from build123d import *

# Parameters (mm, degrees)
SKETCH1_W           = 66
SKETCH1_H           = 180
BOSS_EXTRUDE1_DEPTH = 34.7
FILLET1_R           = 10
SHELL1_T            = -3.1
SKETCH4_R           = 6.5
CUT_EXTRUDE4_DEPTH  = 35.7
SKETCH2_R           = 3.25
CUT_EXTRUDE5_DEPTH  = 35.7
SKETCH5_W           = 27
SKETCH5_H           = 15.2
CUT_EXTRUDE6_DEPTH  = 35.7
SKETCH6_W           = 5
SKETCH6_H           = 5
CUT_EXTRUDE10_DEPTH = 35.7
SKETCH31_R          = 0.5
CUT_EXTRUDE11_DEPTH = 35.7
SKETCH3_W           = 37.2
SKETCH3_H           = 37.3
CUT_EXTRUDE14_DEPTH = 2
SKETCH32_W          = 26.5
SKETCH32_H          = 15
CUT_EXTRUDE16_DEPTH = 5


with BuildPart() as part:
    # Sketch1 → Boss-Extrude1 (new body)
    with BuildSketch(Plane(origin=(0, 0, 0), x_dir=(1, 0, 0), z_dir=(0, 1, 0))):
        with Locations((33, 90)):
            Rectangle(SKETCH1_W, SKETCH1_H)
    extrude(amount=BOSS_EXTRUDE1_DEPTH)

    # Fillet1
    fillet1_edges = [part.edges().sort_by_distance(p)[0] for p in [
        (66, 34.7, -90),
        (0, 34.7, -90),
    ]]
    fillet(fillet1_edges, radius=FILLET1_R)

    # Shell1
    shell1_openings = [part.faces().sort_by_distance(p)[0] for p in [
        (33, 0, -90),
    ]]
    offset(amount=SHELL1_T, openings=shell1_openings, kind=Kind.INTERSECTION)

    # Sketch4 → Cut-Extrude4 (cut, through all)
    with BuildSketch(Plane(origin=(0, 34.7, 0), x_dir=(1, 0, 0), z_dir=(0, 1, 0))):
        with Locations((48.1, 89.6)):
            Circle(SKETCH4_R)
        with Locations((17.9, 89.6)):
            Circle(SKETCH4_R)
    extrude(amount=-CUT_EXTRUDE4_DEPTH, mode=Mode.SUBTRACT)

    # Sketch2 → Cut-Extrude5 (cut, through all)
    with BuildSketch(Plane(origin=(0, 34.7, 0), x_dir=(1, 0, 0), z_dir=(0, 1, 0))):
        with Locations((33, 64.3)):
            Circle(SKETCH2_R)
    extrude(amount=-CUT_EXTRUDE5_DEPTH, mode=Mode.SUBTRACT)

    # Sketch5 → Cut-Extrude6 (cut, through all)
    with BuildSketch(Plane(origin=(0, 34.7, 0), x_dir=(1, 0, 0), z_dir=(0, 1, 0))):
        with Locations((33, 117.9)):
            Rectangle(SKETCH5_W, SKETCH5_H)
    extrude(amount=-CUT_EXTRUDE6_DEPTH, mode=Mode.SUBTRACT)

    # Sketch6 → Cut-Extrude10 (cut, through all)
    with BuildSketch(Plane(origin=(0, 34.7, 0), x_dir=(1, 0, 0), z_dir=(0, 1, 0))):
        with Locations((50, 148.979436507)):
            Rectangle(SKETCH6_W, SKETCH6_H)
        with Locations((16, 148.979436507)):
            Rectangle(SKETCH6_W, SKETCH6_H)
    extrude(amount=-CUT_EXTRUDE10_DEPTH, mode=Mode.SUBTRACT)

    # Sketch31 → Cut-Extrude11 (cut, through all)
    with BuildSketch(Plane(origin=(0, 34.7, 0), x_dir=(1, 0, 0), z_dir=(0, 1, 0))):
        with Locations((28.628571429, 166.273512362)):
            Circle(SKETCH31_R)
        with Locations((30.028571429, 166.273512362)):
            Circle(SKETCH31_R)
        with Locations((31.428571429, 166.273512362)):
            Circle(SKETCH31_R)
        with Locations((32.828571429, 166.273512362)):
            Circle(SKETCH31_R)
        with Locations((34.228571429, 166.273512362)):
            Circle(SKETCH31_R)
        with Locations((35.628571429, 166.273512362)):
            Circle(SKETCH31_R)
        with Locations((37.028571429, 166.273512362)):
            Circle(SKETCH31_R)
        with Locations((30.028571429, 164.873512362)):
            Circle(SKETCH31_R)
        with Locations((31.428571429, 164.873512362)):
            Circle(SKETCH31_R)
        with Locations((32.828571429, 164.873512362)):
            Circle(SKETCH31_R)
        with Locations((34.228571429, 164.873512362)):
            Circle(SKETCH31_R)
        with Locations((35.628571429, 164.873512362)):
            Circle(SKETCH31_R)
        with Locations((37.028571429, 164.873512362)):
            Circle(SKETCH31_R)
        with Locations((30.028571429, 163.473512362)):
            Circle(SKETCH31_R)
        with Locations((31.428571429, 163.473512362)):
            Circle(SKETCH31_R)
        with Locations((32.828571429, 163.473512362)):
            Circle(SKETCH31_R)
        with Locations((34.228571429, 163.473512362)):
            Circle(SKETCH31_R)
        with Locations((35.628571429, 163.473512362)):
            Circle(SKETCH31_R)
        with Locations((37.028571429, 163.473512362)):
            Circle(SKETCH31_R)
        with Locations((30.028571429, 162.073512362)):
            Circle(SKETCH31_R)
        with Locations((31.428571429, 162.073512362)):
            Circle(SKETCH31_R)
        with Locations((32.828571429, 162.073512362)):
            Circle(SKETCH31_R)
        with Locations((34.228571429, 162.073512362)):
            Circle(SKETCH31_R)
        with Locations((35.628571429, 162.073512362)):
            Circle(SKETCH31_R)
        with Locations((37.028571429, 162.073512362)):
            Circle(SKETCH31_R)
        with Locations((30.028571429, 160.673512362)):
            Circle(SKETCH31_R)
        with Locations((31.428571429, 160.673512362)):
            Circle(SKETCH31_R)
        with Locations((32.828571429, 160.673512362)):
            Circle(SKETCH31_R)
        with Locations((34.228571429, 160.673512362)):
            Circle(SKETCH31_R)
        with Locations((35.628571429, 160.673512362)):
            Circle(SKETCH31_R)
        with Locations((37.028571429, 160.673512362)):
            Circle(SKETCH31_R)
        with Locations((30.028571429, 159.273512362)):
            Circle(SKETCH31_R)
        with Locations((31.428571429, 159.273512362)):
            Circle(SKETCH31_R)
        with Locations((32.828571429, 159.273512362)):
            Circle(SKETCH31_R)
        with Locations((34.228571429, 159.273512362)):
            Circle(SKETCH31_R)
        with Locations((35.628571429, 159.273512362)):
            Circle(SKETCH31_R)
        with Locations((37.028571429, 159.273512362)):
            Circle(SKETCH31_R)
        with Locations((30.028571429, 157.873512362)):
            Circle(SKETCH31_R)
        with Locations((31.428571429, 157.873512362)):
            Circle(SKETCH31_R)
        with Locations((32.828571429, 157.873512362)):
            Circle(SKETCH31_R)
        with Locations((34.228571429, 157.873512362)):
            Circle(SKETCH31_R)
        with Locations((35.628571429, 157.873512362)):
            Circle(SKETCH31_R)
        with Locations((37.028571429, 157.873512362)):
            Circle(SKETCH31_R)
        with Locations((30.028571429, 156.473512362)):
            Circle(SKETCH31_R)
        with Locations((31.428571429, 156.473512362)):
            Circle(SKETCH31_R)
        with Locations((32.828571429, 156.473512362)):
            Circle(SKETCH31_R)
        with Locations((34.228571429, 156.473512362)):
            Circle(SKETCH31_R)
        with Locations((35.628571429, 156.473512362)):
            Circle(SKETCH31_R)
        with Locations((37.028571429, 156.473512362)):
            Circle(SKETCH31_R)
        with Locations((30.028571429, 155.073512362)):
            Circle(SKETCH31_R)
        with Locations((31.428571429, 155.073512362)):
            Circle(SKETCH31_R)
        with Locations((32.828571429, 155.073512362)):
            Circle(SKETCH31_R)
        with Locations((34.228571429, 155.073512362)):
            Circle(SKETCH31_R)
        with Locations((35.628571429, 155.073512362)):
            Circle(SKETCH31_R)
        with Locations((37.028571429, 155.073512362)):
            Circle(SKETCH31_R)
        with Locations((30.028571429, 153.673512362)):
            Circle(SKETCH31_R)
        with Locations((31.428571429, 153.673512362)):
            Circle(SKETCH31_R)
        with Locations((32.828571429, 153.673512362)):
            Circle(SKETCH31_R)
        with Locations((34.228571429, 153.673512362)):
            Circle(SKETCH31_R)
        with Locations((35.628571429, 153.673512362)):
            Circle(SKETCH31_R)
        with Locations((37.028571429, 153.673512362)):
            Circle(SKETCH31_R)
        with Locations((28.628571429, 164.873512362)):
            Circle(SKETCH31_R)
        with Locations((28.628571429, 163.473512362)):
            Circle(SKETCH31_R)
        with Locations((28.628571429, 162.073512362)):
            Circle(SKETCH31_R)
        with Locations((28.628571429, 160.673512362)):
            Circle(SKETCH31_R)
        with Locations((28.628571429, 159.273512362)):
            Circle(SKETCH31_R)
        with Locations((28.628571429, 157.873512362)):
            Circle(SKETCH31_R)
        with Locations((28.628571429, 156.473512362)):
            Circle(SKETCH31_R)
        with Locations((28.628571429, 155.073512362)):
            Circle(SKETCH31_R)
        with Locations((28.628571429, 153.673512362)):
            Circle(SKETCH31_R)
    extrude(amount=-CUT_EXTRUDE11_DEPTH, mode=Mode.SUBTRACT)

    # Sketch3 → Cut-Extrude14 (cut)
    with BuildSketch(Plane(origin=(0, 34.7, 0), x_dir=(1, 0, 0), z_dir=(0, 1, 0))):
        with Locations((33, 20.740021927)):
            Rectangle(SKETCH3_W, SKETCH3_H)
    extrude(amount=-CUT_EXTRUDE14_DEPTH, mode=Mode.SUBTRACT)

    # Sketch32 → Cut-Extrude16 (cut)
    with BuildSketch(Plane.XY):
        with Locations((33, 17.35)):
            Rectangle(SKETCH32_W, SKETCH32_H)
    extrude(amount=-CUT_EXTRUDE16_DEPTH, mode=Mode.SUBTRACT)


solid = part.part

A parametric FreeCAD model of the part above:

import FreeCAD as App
import Part
import Sketcher
from FreeCAD import Vector
Q = App.Units.Quantity


def edges_at(feature, points):
    """Names of the edges that pass closest to the given points."""
    edges = feature.Shape.Edges
    near = lambda p: min(range(len(edges)), key=lambda i: edges[i].distToShape(Part.Vertex(*p))[0])
    return sorted({f"Edge{near(p) + 1}" for p in points})


def faces_at(feature, points):
    """Names of the faces that lie closest to the given points."""
    faces = feature.Shape.Faces
    near = lambda p: min(range(len(faces)), key=lambda i: faces[i].distToShape(Part.Vertex(*p))[0])
    return sorted({f"Face{near(p) + 1}" for p in points})


def add_polygon(sketch, points):
    """Adds a closed chain of lines whose ends are joined by coincident constraints."""
    first, n = sketch.GeometryCount, len(points)
    for a, b in zip(points, points[1:] + points[:1]):
        sketch.addGeometry(Part.LineSegment(App.Vector(*a, 0), App.Vector(*b, 0)), False)
    for i in range(n):
        sketch.addConstraint(Sketcher.Constraint("Coincident", first + i, 2, first + (i + 1) % n, 1))

doc = App.newDocument("Part")
body = doc.addObject("PartDesign::Body", "Body")

# Sketch on XZ plane
sketch1 = body.newObject("Sketcher::SketchObject", "Sketch")
sketch1.AttachmentSupport = (doc.getObject("XZ_Plane"), [""])
sketch1.MapMode = "FlatFace"
add_polygon(sketch1, [(0, -180), (0, 0), (66, 0), (66, -180)])  # lines 0-3
sketch1.addConstraint([
    Sketcher.Constraint("Vertical", 0),
    Sketcher.Constraint("Horizontal", 1),
    Sketcher.Constraint("Vertical", 2),
    Sketcher.Constraint("Horizontal", 3),
    Sketcher.Constraint("Coincident", 0, 2, -1, 1),
    Sketcher.Constraint("DistanceX", 1, 1, 1, 2, Q("66 mm")),
    Sketcher.Constraint("DistanceY", 0, 1, 0, 2, Q("180 mm")),
])
pad1 = body.newObject("PartDesign::Pad", "Pad")
pad1.Profile = sketch1
pad1.Length = 34.7
pad1.Reversed = True
doc.recompute()

fillet = body.newObject("PartDesign::Fillet", "Fillet")
fillet.Base = (pad1, edges_at(pad1, [(66, 34.7, -90), (0, 34.7, -90)]))
fillet.Radius = 10
doc.recompute()

thickness = body.newObject("PartDesign::Thickness", "Thickness")
thickness.Base = (fillet, faces_at(fillet, [(33, 0, -90)]))
thickness.Value = 3.1
thickness.Reversed = True
thickness.Join = "Intersection"

# Sketch on XZ plane
sketch2 = body.newObject("Sketcher::SketchObject", "Sketch001")
sketch2.AttachmentSupport = (doc.getObject("XZ_Plane"), [""])
sketch2.MapMode = "FlatFace"
sketch2.AttachmentOffset = App.Placement(Vector(0, 0, -34.7), App.Rotation())
sketch2.addGeometry([
    Part.Circle(Vector(48.1, -89.6, 0), Vector(0, 0, 1), 6.5),
    Part.Circle(Vector(17.9, -89.6, 0), Vector(0, 0, 1), 6.5),
], False)
sketch2.addConstraint([
    Sketcher.Constraint("Equal", 0, 1),
    Sketcher.Constraint("Horizontal", 0, 3, 1, 3),
    Sketcher.Constraint("Diameter", 0, Q("13 mm")),
    Sketcher.Constraint("DistanceX", -1, 1, 0, 3, Q("48.1 mm")),
    Sketcher.Constraint("DistanceY", 0, 3, -1, 1, Q("89.6 mm")),
    Sketcher.Constraint("DistanceX", -1, 1, 1, 3, Q("17.9 mm")),
])
pocket1 = body.newObject("PartDesign::Pocket", "Pocket")
pocket1.Profile = sketch2
pocket1.Type = "ThroughAll"
pocket1.Reversed = True

# Sketch on XZ plane
sketch3 = body.newObject("Sketcher::SketchObject", "Sketch002")
sketch3.AttachmentSupport = (doc.getObject("XZ_Plane"), [""])
sketch3.MapMode = "FlatFace"
sketch3.AttachmentOffset = App.Placement(Vector(0, 0, -34.7), App.Rotation())
sketch3.addGeometry(Part.Circle(Vector(33, -64.3, 0), Vector(0, 0, 1), 3.25), False)
sketch3.addConstraint([
    Sketcher.Constraint("Diameter", 0, Q("6.5 mm")),
    Sketcher.Constraint("DistanceX", -1, 1, 0, 3, Q("33 mm")),
    Sketcher.Constraint("DistanceY", 0, 3, -1, 1, Q("64.3 mm")),
])
pocket2 = body.newObject("PartDesign::Pocket", "Pocket001")
pocket2.Profile = sketch3
pocket2.Type = "ThroughAll"
pocket2.Reversed = True

# Sketch on XZ plane
sketch4 = body.newObject("Sketcher::SketchObject", "Sketch003")
sketch4.AttachmentSupport = (doc.getObject("XZ_Plane"), [""])
sketch4.MapMode = "FlatFace"
sketch4.AttachmentOffset = App.Placement(Vector(0, 0, -34.7), App.Rotation())
add_polygon(sketch4, [(19.5, -125.5), (19.5, -110.3), (46.5, -110.3), (46.5, -125.5)])  # lines 0-3
sketch4.addConstraint([
    Sketcher.Constraint("Vertical", 0),
    Sketcher.Constraint("Horizontal", 1),
    Sketcher.Constraint("Vertical", 2),
    Sketcher.Constraint("Horizontal", 3),
    Sketcher.Constraint("DistanceX", 1, 1, 1, 2, Q("27 mm")),
    Sketcher.Constraint("DistanceY", 0, 1, 0, 2, Q("15.2 mm")),
    Sketcher.Constraint("DistanceX", -1, 1, 0, 2, Q("19.5 mm")),
    Sketcher.Constraint("DistanceY", 0, 2, -1, 1, Q("110.3 mm")),
])
pocket3 = body.newObject("PartDesign::Pocket", "Pocket002")
pocket3.Profile = sketch4
pocket3.Type = "ThroughAll"
pocket3.Reversed = True

# Sketch on XZ plane
sketch5 = body.newObject("Sketcher::SketchObject", "Sketch004")
sketch5.AttachmentSupport = (doc.getObject("XZ_Plane"), [""])
sketch5.MapMode = "FlatFace"
sketch5.AttachmentOffset = App.Placement(Vector(0, 0, -34.7), App.Rotation())
add_polygon(sketch5, [(47.5, -151.479437), (47.5, -146.479437), (52.5, -146.479437), (52.5, -151.479437)])  # lines 0-3
add_polygon(sketch5, [(13.5, -151.479437), (13.5, -146.479437), (18.5, -146.479437), (18.5, -151.479437)])  # lines 4-7
sketch5.addConstraint([
    Sketcher.Constraint("Vertical", 0),
    Sketcher.Constraint("Horizontal", 1),
    Sketcher.Constraint("Vertical", 2),
    Sketcher.Constraint("Horizontal", 3),
    Sketcher.Constraint("Vertical", 4),
    Sketcher.Constraint("Horizontal", 5),
    Sketcher.Constraint("Vertical", 6),
    Sketcher.Constraint("Horizontal", 7),
    Sketcher.Constraint("Horizontal", 1, 2, 4, 2),
    Sketcher.Constraint("Horizontal", 3, 2, 6, 2),
    Sketcher.Constraint("Equal", 3, 5),
    Sketcher.Constraint("Equal", 7, 0),
    Sketcher.Constraint("DistanceX", 1, 1, 1, 2, Q("5 mm")),
    Sketcher.Constraint("DistanceX", 4, 2, 0, 2, Q("34 mm")),
    Sketcher.Constraint("DistanceX", -1, 1, 0, 2, Q("47.5 mm")),
    Sketcher.Constraint("DistanceY", 0, 2, -1, 1, Q("146.479437 mm")),
])
pocket4 = body.newObject("PartDesign::Pocket", "Pocket003")
pocket4.Profile = sketch5
pocket4.Type = "ThroughAll"
pocket4.Reversed = True

# Sketch on XZ plane
sketch6 = body.newObject("Sketcher::SketchObject", "Sketch005")
sketch6.AttachmentSupport = (doc.getObject("XZ_Plane"), [""])
sketch6.MapMode = "FlatFace"
sketch6.AttachmentOffset = App.Placement(Vector(0, 0, -34.7), App.Rotation())
sketch6.addGeometry([
    Part.Circle(Vector(28.628571, -166.273512, 0), Vector(0, 0, 1), 0.5),  # 0
    Part.Circle(Vector(30.028571, -166.273512, 0), Vector(0, 0, 1), 0.5),  # 1
    Part.Circle(Vector(31.428571, -166.273512, 0), Vector(0, 0, 1), 0.5),  # 2
    Part.Circle(Vector(32.828571, -166.273512, 0), Vector(0, 0, 1), 0.5),  # 3
    Part.Circle(Vector(34.228571, -166.273512, 0), Vector(0, 0, 1), 0.5),  # 4
    Part.Circle(Vector(35.628571, -166.273512, 0), Vector(0, 0, 1), 0.5),  # 5
    Part.Circle(Vector(37.028571, -166.273512, 0), Vector(0, 0, 1), 0.5),  # 6
    Part.Circle(Vector(30.028571, -164.873512, 0), Vector(0, 0, 1), 0.5),  # 7
    Part.Circle(Vector(31.428571, -164.873512, 0), Vector(0, 0, 1), 0.5),  # 8
    Part.Circle(Vector(32.828571, -164.873512, 0), Vector(0, 0, 1), 0.5),  # 9
    Part.Circle(Vector(34.228571, -164.873512, 0), Vector(0, 0, 1), 0.5),  # 10
    Part.Circle(Vector(35.628571, -164.873512, 0), Vector(0, 0, 1), 0.5),  # 11
    Part.Circle(Vector(37.028571, -164.873512, 0), Vector(0, 0, 1), 0.5),  # 12
    Part.Circle(Vector(30.028571, -163.473512, 0), Vector(0, 0, 1), 0.5),  # 13
    Part.Circle(Vector(31.428571, -163.473512, 0), Vector(0, 0, 1), 0.5),  # 14
    Part.Circle(Vector(32.828571, -163.473512, 0), Vector(0, 0, 1), 0.5),  # 15
    Part.Circle(Vector(34.228571, -163.473512, 0), Vector(0, 0, 1), 0.5),  # 16
    Part.Circle(Vector(35.628571, -163.473512, 0), Vector(0, 0, 1), 0.5),  # 17
    Part.Circle(Vector(37.028571, -163.473512, 0), Vector(0, 0, 1), 0.5),  # 18
    Part.Circle(Vector(30.028571, -162.073512, 0), Vector(0, 0, 1), 0.5),  # 19
    Part.Circle(Vector(31.428571, -162.073512, 0), Vector(0, 0, 1), 0.5),  # 20
    Part.Circle(Vector(32.828571, -162.073512, 0), Vector(0, 0, 1), 0.5),  # 21
    Part.Circle(Vector(34.228571, -162.073512, 0), Vector(0, 0, 1), 0.5),  # 22
    Part.Circle(Vector(35.628571, -162.073512, 0), Vector(0, 0, 1), 0.5),  # 23
    Part.Circle(Vector(37.028571, -162.073512, 0), Vector(0, 0, 1), 0.5),  # 24
    Part.Circle(Vector(30.028571, -160.673512, 0), Vector(0, 0, 1), 0.5),  # 25
    Part.Circle(Vector(31.428571, -160.673512, 0), Vector(0, 0, 1), 0.5),  # 26
    Part.Circle(Vector(32.828571, -160.673512, 0), Vector(0, 0, 1), 0.5),  # 27
    Part.Circle(Vector(34.228571, -160.673512, 0), Vector(0, 0, 1), 0.5),  # 28
    Part.Circle(Vector(35.628571, -160.673512, 0), Vector(0, 0, 1), 0.5),  # 29
    Part.Circle(Vector(37.028571, -160.673512, 0), Vector(0, 0, 1), 0.5),  # 30
    Part.Circle(Vector(30.028571, -159.273512, 0), Vector(0, 0, 1), 0.5),  # 31
    Part.Circle(Vector(31.428571, -159.273512, 0), Vector(0, 0, 1), 0.5),  # 32
    Part.Circle(Vector(32.828571, -159.273512, 0), Vector(0, 0, 1), 0.5),  # 33
    Part.Circle(Vector(34.228571, -159.273512, 0), Vector(0, 0, 1), 0.5),  # 34
    Part.Circle(Vector(35.628571, -159.273512, 0), Vector(0, 0, 1), 0.5),  # 35
    Part.Circle(Vector(37.028571, -159.273512, 0), Vector(0, 0, 1), 0.5),  # 36
    Part.Circle(Vector(30.028571, -157.873512, 0), Vector(0, 0, 1), 0.5),  # 37
    Part.Circle(Vector(31.428571, -157.873512, 0), Vector(0, 0, 1), 0.5),  # 38
    Part.Circle(Vector(32.828571, -157.873512, 0), Vector(0, 0, 1), 0.5),  # 39
    Part.Circle(Vector(34.228571, -157.873512, 0), Vector(0, 0, 1), 0.5),  # 40
    Part.Circle(Vector(35.628571, -157.873512, 0), Vector(0, 0, 1), 0.5),  # 41
    Part.Circle(Vector(37.028571, -157.873512, 0), Vector(0, 0, 1), 0.5),  # 42
    Part.Circle(Vector(30.028571, -156.473512, 0), Vector(0, 0, 1), 0.5),  # 43
    Part.Circle(Vector(31.428571, -156.473512, 0), Vector(0, 0, 1), 0.5),  # 44
    Part.Circle(Vector(32.828571, -156.473512, 0), Vector(0, 0, 1), 0.5),  # 45
    Part.Circle(Vector(34.228571, -156.473512, 0), Vector(0, 0, 1), 0.5),  # 46
    Part.Circle(Vector(35.628571, -156.473512, 0), Vector(0, 0, 1), 0.5),  # 47
    Part.Circle(Vector(37.028571, -156.473512, 0), Vector(0, 0, 1), 0.5),  # 48
    Part.Circle(Vector(30.028571, -155.073512, 0), Vector(0, 0, 1), 0.5),  # 49
    Part.Circle(Vector(31.428571, -155.073512, 0), Vector(0, 0, 1), 0.5),  # 50
    Part.Circle(Vector(32.828571, -155.073512, 0), Vector(0, 0, 1), 0.5),  # 51
    Part.Circle(Vector(34.228571, -155.073512, 0), Vector(0, 0, 1), 0.5),  # 52
    Part.Circle(Vector(35.628571, -155.073512, 0), Vector(0, 0, 1), 0.5),  # 53
    Part.Circle(Vector(37.028571, -155.073512, 0), Vector(0, 0, 1), 0.5),  # 54
    Part.Circle(Vector(30.028571, -153.673512, 0), Vector(0, 0, 1), 0.5),  # 55
    Part.Circle(Vector(31.428571, -153.673512, 0), Vector(0, 0, 1), 0.5),  # 56
    Part.Circle(Vector(32.828571, -153.673512, 0), Vector(0, 0, 1), 0.5),  # 57
    Part.Circle(Vector(34.228571, -153.673512, 0), Vector(0, 0, 1), 0.5),  # 58
    Part.Circle(Vector(35.628571, -153.673512, 0), Vector(0, 0, 1), 0.5),  # 59
    Part.Circle(Vector(37.028571, -153.673512, 0), Vector(0, 0, 1), 0.5),  # 60
    Part.Circle(Vector(28.628571, -164.873512, 0), Vector(0, 0, 1), 0.5),  # 61
    Part.Circle(Vector(28.628571, -163.473512, 0), Vector(0, 0, 1), 0.5),  # 62
    Part.Circle(Vector(28.628571, -162.073512, 0), Vector(0, 0, 1), 0.5),  # 63
    Part.Circle(Vector(28.628571, -160.673512, 0), Vector(0, 0, 1), 0.5),  # 64
    Part.Circle(Vector(28.628571, -159.273512, 0), Vector(0, 0, 1), 0.5),  # 65
    Part.Circle(Vector(28.628571, -157.873512, 0), Vector(0, 0, 1), 0.5),  # 66
    Part.Circle(Vector(28.628571, -156.473512, 0), Vector(0, 0, 1), 0.5),  # 67
    Part.Circle(Vector(28.628571, -155.073512, 0), Vector(0, 0, 1), 0.5),  # 68
    Part.Circle(Vector(28.628571, -153.673512, 0), Vector(0, 0, 1), 0.5),  # 69
], False)
sketch6.addConstraint([
    Sketcher.Constraint("Equal", 0, 1),
    Sketcher.Constraint("Equal", 1, 2),
    Sketcher.Constraint("Equal", 2, 3),
    Sketcher.Constraint("Equal", 3, 4),
    Sketcher.Constraint("Equal", 4, 5),
    Sketcher.Constraint("Equal", 5, 6),
    Sketcher.Constraint("Equal", 6, 7),
    Sketcher.Constraint("Equal", 7, 8),
    Sketcher.Constraint("Equal", 8, 9),
    Sketcher.Constraint("Equal", 9, 10),
    Sketcher.Constraint("Equal", 10, 11),
    Sketcher.Constraint("Equal", 11, 12),
    Sketcher.Constraint("Equal", 12, 13),
    Sketcher.Constraint("Equal", 13, 14),
    Sketcher.Constraint("Equal", 14, 15),
    Sketcher.Constraint("Equal", 15, 16),
    Sketcher.Constraint("Equal", 16, 17),
    Sketcher.Constraint("Equal", 17, 18),
    Sketcher.Constraint("Equal", 18, 19),
    Sketcher.Constraint("Equal", 19, 20),
    Sketcher.Constraint("Equal", 20, 21),
    Sketcher.Constraint("Equal", 21, 22),
    Sketcher.Constraint("Equal", 22, 23),
    Sketcher.Constraint("Equal", 23, 24),
    Sketcher.Constraint("Equal", 24, 25),
    Sketcher.Constraint("Equal", 25, 26),
    Sketcher.Constraint("Equal", 26, 27),
    Sketcher.Constraint("Equal", 27, 28),
    Sketcher.Constraint("Equal", 28, 29),
    Sketcher.Constraint("Equal", 29, 30),
    Sketcher.Constraint("Equal", 30, 31),
    Sketcher.Constraint("Equal", 31, 32),
    Sketcher.Constraint("Equal", 32, 33),
    Sketcher.Constraint("Equal", 33, 34),
    Sketcher.Constraint("Equal", 34, 35),
    Sketcher.Constraint("Equal", 35, 36),
    Sketcher.Constraint("Equal", 36, 37),
    Sketcher.Constraint("Equal", 37, 38),
    Sketcher.Constraint("Equal", 38, 39),
    Sketcher.Constraint("Equal", 39, 40),
    Sketcher.Constraint("Equal", 40, 41),
    Sketcher.Constraint("Equal", 41, 42),
    Sketcher.Constraint("Equal", 42, 43),
    Sketcher.Constraint("Equal", 43, 44),
    Sketcher.Constraint("Equal", 44, 45),
    Sketcher.Constraint("Equal", 45, 46),
    Sketcher.Constraint("Equal", 46, 47),
    Sketcher.Constraint("Equal", 47, 48),
    Sketcher.Constraint("Equal", 48, 49),
    Sketcher.Constraint("Equal", 49, 50),
    Sketcher.Constraint("Equal", 50, 51),
    Sketcher.Constraint("Equal", 51, 52),
    Sketcher.Constraint("Equal", 52, 53),
    Sketcher.Constraint("Equal", 53, 54),
    Sketcher.Constraint("Equal", 54, 55),
    Sketcher.Constraint("Equal", 55, 56),
    Sketcher.Constraint("Equal", 56, 57),
    Sketcher.Constraint("Equal", 57, 58),
    Sketcher.Constraint("Equal", 58, 59),
    Sketcher.Constraint("Equal", 59, 60),
    Sketcher.Constraint("Equal", 60, 61),
    Sketcher.Constraint("Equal", 61, 62),
    Sketcher.Constraint("Equal", 62, 63),
    Sketcher.Constraint("Equal", 63, 64),
    Sketcher.Constraint("Equal", 64, 65),
    Sketcher.Constraint("Equal", 65, 66),
    Sketcher.Constraint("Equal", 66, 67),
    Sketcher.Constraint("Equal", 67, 68),
    Sketcher.Constraint("Equal", 68, 69),
    Sketcher.Constraint("Horizontal", 0, 3, 1, 3),
    Sketcher.Constraint("Horizontal", 1, 3, 2, 3),
    Sketcher.Constraint("Horizontal", 2, 3, 3, 3),
    Sketcher.Constraint("Horizontal", 3, 3, 4, 3),
    Sketcher.Constraint("Horizontal", 4, 3, 5, 3),
    Sketcher.Constraint("Horizontal", 5, 3, 6, 3),
    Sketcher.Constraint("Horizontal", 7, 3, 8, 3),
    Sketcher.Constraint("Horizontal", 8, 3, 9, 3),
    Sketcher.Constraint("Horizontal", 9, 3, 10, 3),
    Sketcher.Constraint("Horizontal", 10, 3, 11, 3),
    Sketcher.Constraint("Horizontal", 11, 3, 12, 3),
    Sketcher.Constraint("Horizontal", 13, 3, 14, 3),
    Sketcher.Constraint("Horizontal", 14, 3, 15, 3),
    Sketcher.Constraint("Horizontal", 15, 3, 16, 3),
    Sketcher.Constraint("Horizontal", 16, 3, 17, 3),
    Sketcher.Constraint("Horizontal", 17, 3, 18, 3),
    Sketcher.Constraint("Horizontal", 19, 3, 20, 3),
    Sketcher.Constraint("Horizontal", 20, 3, 21, 3),
    Sketcher.Constraint("Horizontal", 21, 3, 22, 3),
    Sketcher.Constraint("Horizontal", 22, 3, 23, 3),
    Sketcher.Constraint("Horizontal", 23, 3, 24, 3),
    Sketcher.Constraint("Horizontal", 25, 3, 26, 3),
    Sketcher.Constraint("Horizontal", 26, 3, 27, 3),
    Sketcher.Constraint("Horizontal", 27, 3, 28, 3),
    Sketcher.Constraint("Horizontal", 28, 3, 29, 3),
    Sketcher.Constraint("Horizontal", 29, 3, 30, 3),
    Sketcher.Constraint("Horizontal", 31, 3, 32, 3),
    Sketcher.Constraint("Horizontal", 32, 3, 33, 3),
    Sketcher.Constraint("Horizontal", 33, 3, 34, 3),
    Sketcher.Constraint("Horizontal", 34, 3, 35, 3),
    Sketcher.Constraint("Horizontal", 35, 3, 36, 3),
    Sketcher.Constraint("Horizontal", 37, 3, 38, 3),
    Sketcher.Constraint("Horizontal", 38, 3, 39, 3),
    Sketcher.Constraint("Horizontal", 39, 3, 40, 3),
    Sketcher.Constraint("Horizontal", 40, 3, 41, 3),
    Sketcher.Constraint("Horizontal", 41, 3, 42, 3),
    Sketcher.Constraint("Horizontal", 43, 3, 44, 3),
    Sketcher.Constraint("Horizontal", 44, 3, 45, 3),
    Sketcher.Constraint("Horizontal", 45, 3, 46, 3),
    Sketcher.Constraint("Horizontal", 46, 3, 47, 3),
    Sketcher.Constraint("Horizontal", 47, 3, 48, 3),
    Sketcher.Constraint("Horizontal", 49, 3, 50, 3),
    Sketcher.Constraint("Horizontal", 50, 3, 51, 3),
    Sketcher.Constraint("Horizontal", 51, 3, 52, 3),
    Sketcher.Constraint("Horizontal", 52, 3, 53, 3),
    Sketcher.Constraint("Horizontal", 53, 3, 54, 3),
    Sketcher.Constraint("Horizontal", 55, 3, 56, 3),
    Sketcher.Constraint("Horizontal", 56, 3, 57, 3),
    Sketcher.Constraint("Horizontal", 57, 3, 58, 3),
    Sketcher.Constraint("Horizontal", 58, 3, 59, 3),
    Sketcher.Constraint("Horizontal", 59, 3, 60, 3),
    Sketcher.Constraint("Horizontal", 12, 3, 61, 3),
    Sketcher.Constraint("Horizontal", 18, 3, 62, 3),
    Sketcher.Constraint("Horizontal", 24, 3, 63, 3),
    Sketcher.Constraint("Horizontal", 30, 3, 64, 3),
    Sketcher.Constraint("Horizontal", 36, 3, 65, 3),
    Sketcher.Constraint("Horizontal", 42, 3, 66, 3),
    Sketcher.Constraint("Horizontal", 48, 3, 67, 3),
    Sketcher.Constraint("Horizontal", 54, 3, 68, 3),
    Sketcher.Constraint("Horizontal", 60, 3, 69, 3),
    Sketcher.Constraint("Vertical", 1, 3, 7, 3),
    Sketcher.Constraint("Vertical", 2, 3, 8, 3),
    Sketcher.Constraint("Vertical", 3, 3, 9, 3),
    Sketcher.Constraint("Vertical", 4, 3, 10, 3),
    Sketcher.Constraint("Vertical", 5, 3, 11, 3),
    Sketcher.Constraint("Vertical", 6, 3, 12, 3),
    Sketcher.Constraint("Vertical", 7, 3, 13, 3),
    Sketcher.Constraint("Vertical", 8, 3, 14, 3),
    Sketcher.Constraint("Vertical", 9, 3, 15, 3),
    Sketcher.Constraint("Vertical", 10, 3, 16, 3),
    Sketcher.Constraint("Vertical", 11, 3, 17, 3),
    Sketcher.Constraint("Vertical", 12, 3, 18, 3),
    Sketcher.Constraint("Vertical", 13, 3, 19, 3),
    Sketcher.Constraint("Vertical", 14, 3, 20, 3),
    Sketcher.Constraint("Vertical", 15, 3, 21, 3),
    Sketcher.Constraint("Vertical", 16, 3, 22, 3),
    Sketcher.Constraint("Vertical", 17, 3, 23, 3),
    Sketcher.Constraint("Vertical", 18, 3, 24, 3),
    Sketcher.Constraint("Vertical", 19, 3, 25, 3),
    Sketcher.Constraint("Vertical", 20, 3, 26, 3),
    Sketcher.Constraint("Vertical", 21, 3, 27, 3),
    Sketcher.Constraint("Vertical", 22, 3, 28, 3),
    Sketcher.Constraint("Vertical", 23, 3, 29, 3),
    Sketcher.Constraint("Vertical", 24, 3, 30, 3),
    Sketcher.Constraint("Vertical", 25, 3, 31, 3),
    Sketcher.Constraint("Vertical", 26, 3, 32, 3),
    Sketcher.Constraint("Vertical", 27, 3, 33, 3),
    Sketcher.Constraint("Vertical", 28, 3, 34, 3),
    Sketcher.Constraint("Vertical", 29, 3, 35, 3),
    Sketcher.Constraint("Vertical", 30, 3, 36, 3),
    Sketcher.Constraint("Vertical", 31, 3, 37, 3),
    Sketcher.Constraint("Vertical", 32, 3, 38, 3),
    Sketcher.Constraint("Vertical", 33, 3, 39, 3),
    Sketcher.Constraint("Vertical", 34, 3, 40, 3),
    Sketcher.Constraint("Vertical", 35, 3, 41, 3),
    Sketcher.Constraint("Vertical", 36, 3, 42, 3),
    Sketcher.Constraint("Vertical", 37, 3, 43, 3),
    Sketcher.Constraint("Vertical", 38, 3, 44, 3),
    Sketcher.Constraint("Vertical", 39, 3, 45, 3),
    Sketcher.Constraint("Vertical", 40, 3, 46, 3),
    Sketcher.Constraint("Vertical", 41, 3, 47, 3),
    Sketcher.Constraint("Vertical", 42, 3, 48, 3),
    Sketcher.Constraint("Vertical", 43, 3, 49, 3),
    Sketcher.Constraint("Vertical", 44, 3, 50, 3),
    Sketcher.Constraint("Vertical", 45, 3, 51, 3),
    Sketcher.Constraint("Vertical", 46, 3, 52, 3),
    Sketcher.Constraint("Vertical", 47, 3, 53, 3),
    Sketcher.Constraint("Vertical", 48, 3, 54, 3),
    Sketcher.Constraint("Vertical", 49, 3, 55, 3),
    Sketcher.Constraint("Vertical", 50, 3, 56, 3),
    Sketcher.Constraint("Vertical", 51, 3, 57, 3),
    Sketcher.Constraint("Vertical", 52, 3, 58, 3),
    Sketcher.Constraint("Vertical", 53, 3, 59, 3),
    Sketcher.Constraint("Vertical", 54, 3, 60, 3),
    Sketcher.Constraint("Vertical", 0, 3, 61, 3),
    Sketcher.Constraint("Vertical", 61, 3, 62, 3),
    Sketcher.Constraint("Vertical", 62, 3, 63, 3),
    Sketcher.Constraint("Vertical", 63, 3, 64, 3),
    Sketcher.Constraint("Vertical", 64, 3, 65, 3),
    Sketcher.Constraint("Vertical", 65, 3, 66, 3),
    Sketcher.Constraint("Vertical", 66, 3, 67, 3),
    Sketcher.Constraint("Vertical", 67, 3, 68, 3),
    Sketcher.Constraint("Vertical", 68, 3, 69, 3),
    Sketcher.Constraint("Diameter", 0, Q("1 mm")),
    Sketcher.Constraint("DistanceX", -1, 1, 0, 3, Q("28.628571 mm")),
    Sketcher.Constraint("DistanceX", -1, 1, 1, 3, Q("30.028571 mm")),
    Sketcher.Constraint("DistanceX", -1, 1, 2, 3, Q("31.428571 mm")),
    Sketcher.Constraint("DistanceX", -1, 1, 3, 3, Q("32.828571 mm")),
    Sketcher.Constraint("DistanceX", -1, 1, 4, 3, Q("34.228571 mm")),
    Sketcher.Constraint("DistanceX", -1, 1, 5, 3, Q("35.628571 mm")),
    Sketcher.Constraint("DistanceX", -1, 1, 6, 3, Q("37.028571 mm")),
    Sketcher.Constraint("DistanceY", 0, 3, -1, 1, Q("166.273512 mm")),
    Sketcher.Constraint("DistanceY", 7, 3, -1, 1, Q("164.873512 mm")),
    Sketcher.Constraint("DistanceY", 13, 3, -1, 1, Q("163.473512 mm")),
    Sketcher.Constraint("DistanceY", 19, 3, -1, 1, Q("162.073512 mm")),
    Sketcher.Constraint("DistanceY", 25, 3, -1, 1, Q("160.673512 mm")),
    Sketcher.Constraint("DistanceY", 31, 3, -1, 1, Q("159.273512 mm")),
    Sketcher.Constraint("DistanceY", 37, 3, -1, 1, Q("157.873512 mm")),
    Sketcher.Constraint("DistanceY", 43, 3, -1, 1, Q("156.473512 mm")),
    Sketcher.Constraint("DistanceY", 49, 3, -1, 1, Q("155.073512 mm")),
    Sketcher.Constraint("DistanceY", 55, 3, -1, 1, Q("153.673512 mm")),
])
pocket5 = body.newObject("PartDesign::Pocket", "Pocket004")
pocket5.Profile = sketch6
pocket5.Type = "ThroughAll"
pocket5.Reversed = True

# Sketch on XZ plane
sketch7 = body.newObject("Sketcher::SketchObject", "Sketch006")
sketch7.AttachmentSupport = (doc.getObject("XZ_Plane"), [""])
sketch7.MapMode = "FlatFace"
sketch7.AttachmentOffset = App.Placement(Vector(0, 0, -34.7), App.Rotation())
add_polygon(sketch7, [(14.4, -39.390022), (14.4, -2.090022), (51.6, -2.090022), (51.6, -39.390022)])  # lines 0-3
sketch7.addConstraint([
    Sketcher.Constraint("Vertical", 0),
    Sketcher.Constraint("Horizontal", 1),
    Sketcher.Constraint("Vertical", 2),
    Sketcher.Constraint("Horizontal", 3),
    Sketcher.Constraint("DistanceX", 1, 1, 1, 2, Q("37.2 mm")),
    Sketcher.Constraint("DistanceY", 0, 1, 0, 2, Q("37.3 mm")),
    Sketcher.Constraint("DistanceX", -1, 1, 0, 2, Q("14.4 mm")),
    Sketcher.Constraint("DistanceY", 0, 2, -1, 1, Q("2.090022 mm")),
])
pocket6 = body.newObject("PartDesign::Pocket", "Pocket005")
pocket6.Profile = sketch7
pocket6.Length = 2
pocket6.Reversed = True

# Sketch on XY plane
sketch8 = body.newObject("Sketcher::SketchObject", "Sketch007")
sketch8.AttachmentSupport = (doc.getObject("XY_Plane"), [""])
sketch8.MapMode = "FlatFace"
add_polygon(sketch8, [(19.75, 24.85), (19.75, 9.85), (46.25, 9.85), (46.25, 24.85)])  # lines 0-3
sketch8.addConstraint([
    Sketcher.Constraint("Vertical", 0),
    Sketcher.Constraint("Horizontal", 1),
    Sketcher.Constraint("Vertical", 2),
    Sketcher.Constraint("Horizontal", 3),
    Sketcher.Constraint("DistanceY", 0, 2, 0, 1, Q("15 mm")),
    Sketcher.Constraint("DistanceX", 1, 1, 1, 2, Q("26.5 mm")),
    Sketcher.Constraint("DistanceX", -1, 1, 0, 2, Q("19.75 mm")),
    Sketcher.Constraint("DistanceY", -1, 1, 0, 2, Q("9.85 mm")),
])
pocket7 = body.newObject("PartDesign::Pocket", "Pocket006")
pocket7.Profile = sketch8
pocket7.Length = 5

doc.recompute()
